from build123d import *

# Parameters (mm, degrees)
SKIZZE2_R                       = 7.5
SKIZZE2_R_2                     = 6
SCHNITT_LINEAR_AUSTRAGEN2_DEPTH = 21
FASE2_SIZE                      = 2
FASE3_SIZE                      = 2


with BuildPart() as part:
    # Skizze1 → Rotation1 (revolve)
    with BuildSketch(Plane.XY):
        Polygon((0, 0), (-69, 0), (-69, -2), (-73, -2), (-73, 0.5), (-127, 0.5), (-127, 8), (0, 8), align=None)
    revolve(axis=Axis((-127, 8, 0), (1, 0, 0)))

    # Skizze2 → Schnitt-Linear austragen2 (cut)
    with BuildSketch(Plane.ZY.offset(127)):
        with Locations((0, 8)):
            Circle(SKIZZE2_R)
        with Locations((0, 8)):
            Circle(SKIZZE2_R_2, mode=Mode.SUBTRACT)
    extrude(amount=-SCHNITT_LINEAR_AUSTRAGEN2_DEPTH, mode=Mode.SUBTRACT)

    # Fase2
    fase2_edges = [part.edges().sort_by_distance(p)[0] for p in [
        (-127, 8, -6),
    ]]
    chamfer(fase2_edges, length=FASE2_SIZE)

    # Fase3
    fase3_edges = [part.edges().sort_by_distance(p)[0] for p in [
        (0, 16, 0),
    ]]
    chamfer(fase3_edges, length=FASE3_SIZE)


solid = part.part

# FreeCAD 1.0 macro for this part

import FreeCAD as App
import Part
import Sketcher
from FreeCAD import Vector


def edges_at(feature, points):
    """Names of the edges that pass closest to the given points."""
    edges = feature.Shape.Edges
    near = lambda p: min(range(len(edges)), key=lambda i: edges[i].distToShape(Part.Vertex(*p))[0])
    return sorted({f"Edge{near(p) + 1}" for p in points})


def add_polygon(sketch, points):
    """Adds a closed chain of lines whose ends are joined by coincident constraints."""
    first, n = sketch.GeometryCount, len(points)
    for a, b in zip(points, points[1:] + points[:1]):
        sketch.addGeometry(Part.LineSegment(App.Vector(*a, 0), App.Vector(*b, 0)), False)
    for i in range(n):
        sketch.addConstraint(Sketcher.Constraint("Coincident", first + i, 2, first + (i + 1) % n, 1))

doc = App.newDocument("Part")
body = doc.addObject("PartDesign::Body", "Body")

sketch1 = doc.addObject("Sketcher::SketchObject", "Sketch")
body.addObject(sketch1)
sketch1.AttachmentSupport = (doc.XY_Plane, [""])
sketch1.MapMode = "FlatFace"
add_polygon(sketch1, [(-69, 0), (0, 0), (0, 8), (-127, 8), (-127, 0.5), (-73, 0.5), (-73, -2), (-69, -2)])
sketch1.addGeometry(Part.LineSegment(Vector(-127, 8, 0), Vector(0, 8, 0)), True)
sketch1.addConstraint([
    Sketcher.Constraint("Horizontal", 0),
    Sketcher.Constraint("Vertical", 1),
    Sketcher.Constraint("Horizontal", 2),
    Sketcher.Constraint("Vertical", 3),
    Sketcher.Constraint("Horizontal", 4),
    Sketcher.Constraint("Vertical", 5),
    Sketcher.Constraint("Horizontal", 6),
    Sketcher.Constraint("Vertical", 7),
    Sketcher.Constraint("Horizontal", 8),
    Sketcher.Constraint("Coincident", 0, 2, -1, 1),
    Sketcher.Constraint("Coincident", 8, 1, 2, 2),
    Sketcher.Constraint("PointOnObject", 8, 2, -2),
    Sketcher.Constraint("DistanceX", 0, 1, 0, 2, 69.0),
    Sketcher.Constraint("DistanceX", 2, 2, 2, 1, 127.0),
    Sketcher.Constraint("DistanceX", 4, 1, 4, 2, 54.0),
    Sketcher.Constraint("DistanceY", 1, 1, 1, 2, 8.0),
    Sketcher.Constraint("DistanceY", 7, 1, 7, 2, 2.0),
    Sketcher.Constraint("DistanceY", 3, 2, 3, 1, 7.5),
])
revolution = doc.addObject("PartDesign::Revolution", "Revolution")
body.addObject(revolution)
revolution.Profile = sketch1
revolution.ReferenceAxis = (sketch1, ["Axis0"])
revolution.Angle = 360

sketch2 = doc.addObject("Sketcher::SketchObject", "Sketch001")
body.addObject(sketch2)
sketch2.AttachmentSupport = (doc.YZ_Plane, [""])
sketch2.MapMode = "FlatFace"
sketch2.AttachmentOffset = App.Placement(Vector(0, 0, -127), App.Rotation())
sketch2.addGeometry([
    Part.Circle(Vector(8, 0, 0), Vector(0, 0, 1), 8),
    Part.Circle(Vector(8, 0, 0), Vector(0, 0, 1), 6),
], False)
sketch2.addConstraint([
    Sketcher.Constraint("Coincident", 1, 3, 0, 3),
    Sketcher.Constraint("PointOnObject", 0, 3, -1),
    Sketcher.Constraint("Diameter", 0, 15.0),
    Sketcher.Constraint("Diameter", 1, 12.0),
    Sketcher.Constraint("DistanceX", -1, 1, 0, 3, 8.0),
])
pocket1 = doc.addObject("PartDesign::Pocket", "Pocket")
body.addObject(pocket1)
pocket1.Profile = sketch2
pocket1.Length = 21
pocket1.Reversed = True
doc.recompute()

chamfer = doc.addObject("PartDesign::Chamfer", "Chamfer")
body.addObject(chamfer)
chamfer.Base = (pocket1, edges_at(pocket1, [(-127, 8, -6)]))
chamfer.Size = 2
doc.recompute()

chamfer2 = doc.addObject("PartDesign::Chamfer", "Chamfer001")
body.addObject(chamfer2)
chamfer2.Base = (chamfer, edges_at(chamfer, [(0, 16, 0)]))
chamfer2.Size = 2

doc.recompute()
